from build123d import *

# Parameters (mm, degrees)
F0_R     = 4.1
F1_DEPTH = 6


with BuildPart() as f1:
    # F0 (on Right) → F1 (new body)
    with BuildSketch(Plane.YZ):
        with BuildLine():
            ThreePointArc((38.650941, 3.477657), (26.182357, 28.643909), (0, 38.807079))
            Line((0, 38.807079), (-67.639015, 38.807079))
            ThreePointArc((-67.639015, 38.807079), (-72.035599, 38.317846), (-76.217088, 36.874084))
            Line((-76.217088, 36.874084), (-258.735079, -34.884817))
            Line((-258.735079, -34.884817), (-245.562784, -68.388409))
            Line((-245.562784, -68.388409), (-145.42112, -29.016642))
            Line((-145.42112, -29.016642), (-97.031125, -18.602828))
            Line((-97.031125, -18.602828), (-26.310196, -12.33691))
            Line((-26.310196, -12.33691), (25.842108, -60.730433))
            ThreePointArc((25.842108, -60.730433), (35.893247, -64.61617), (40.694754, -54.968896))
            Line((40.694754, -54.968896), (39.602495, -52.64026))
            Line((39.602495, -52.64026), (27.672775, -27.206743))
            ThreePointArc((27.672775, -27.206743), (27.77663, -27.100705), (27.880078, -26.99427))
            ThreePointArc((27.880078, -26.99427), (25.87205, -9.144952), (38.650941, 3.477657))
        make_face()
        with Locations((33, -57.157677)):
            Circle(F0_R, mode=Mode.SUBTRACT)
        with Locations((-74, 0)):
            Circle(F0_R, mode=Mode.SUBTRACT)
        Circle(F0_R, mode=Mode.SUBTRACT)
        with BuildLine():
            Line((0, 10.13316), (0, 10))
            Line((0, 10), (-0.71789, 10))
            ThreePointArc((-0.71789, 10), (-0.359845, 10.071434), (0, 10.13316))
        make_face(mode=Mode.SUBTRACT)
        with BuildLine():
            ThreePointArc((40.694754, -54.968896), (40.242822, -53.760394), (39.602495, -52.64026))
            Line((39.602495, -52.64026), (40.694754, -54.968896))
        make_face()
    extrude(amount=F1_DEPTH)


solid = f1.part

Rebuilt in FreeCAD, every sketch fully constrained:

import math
import FreeCAD as App
import Part
import Sketcher
Q = App.Units.Quantity

doc = App.newDocument("Part")
body = doc.addObject("PartDesign::Body", "Body")

sketch1 = body.newObject("Sketcher::SketchObject", "Sketch")
sketch1.AttachmentSupport = (doc.getObject("YZ_Plane"), [""])
sketch1.MapMode = "FlatFace"
sketch1.addGeometry([
    Part.ArcOfCircle(Part.Circle(App.Vector(45.267424, -16.000604, 0), App.Vector(0, 0, 1), 20.571351), math.radians(108.76188), math.radians(212.304337)),
    Part.ArcOfCircle(Part.Circle(App.Vector(-0.000001, 0, 0), App.Vector(0, 0, 1), 38.807079), math.radians(5.141401), math.radians(89.999999)),
    Part.LineSegment(App.Vector(0, 38.807079, 0), App.Vector(-67.639015, 38.807079, 0)),
    Part.ArcOfCircle(Part.Circle(App.Vector(-67.63901, 18.807056, 0), App.Vector(0, 0, 1), 20.000023), math.radians(90.000014), math.radians(115.397987)),
    Part.LineSegment(App.Vector(-76.217088, 36.874084, 0), App.Vector(-258.735079, -34.884817, 0)),
    Part.LineSegment(App.Vector(-258.735079, -34.884817, 0), App.Vector(-245.562784, -68.388409, 0)),
    Part.LineSegment(App.Vector(-245.562784, -68.388409, 0), App.Vector(-145.42112, -29.016642, 0)),
    Part.LineSegment(App.Vector(-145.42112, -29.016642, 0), App.Vector(-97.031125, -18.602828, 0)),
    Part.LineSegment(App.Vector(-97.031125, -18.602828, 0), App.Vector(-26.310196, -12.33691, 0)),
    Part.LineSegment(App.Vector(-26.310196, -12.33691, 0), App.Vector(25.842108, -60.730433, 0)),
    Part.ArcOfCircle(Part.Circle(App.Vector(33, -57.157677, 0), App.Vector(0, 0, 1), 8), math.radians(-153.474598), math.radians(15.878456)),
    Part.ArcOfCircle(Part.Circle(App.Vector(33.000015, -57.157671, 0), App.Vector(0, 0, 1), 7.999984), math.radians(15.878447), math.radians(34.379899)),
    Part.LineSegment(App.Vector(39.602495, -52.64026, 0), App.Vector(27.672775, -27.206743, 0)),
    Part.ArcOfCircle(Part.Circle(App.Vector(0.043029, -0.041932, 0), App.Vector(0, 0, 1), 38.746997), math.radians(-44.513854), math.radians(-44.074897)),
    Part.Circle(App.Vector(33, -57.157677, 0), App.Vector(0, 0, 1), 4.1),
    Part.Circle(App.Vector(-74, 0, 0), App.Vector(0, 0, 1), 4.1),
    Part.Circle(App.Vector(0, 0, 0), App.Vector(0, 0, 1), 4.1),
    Part.ArcOfCircle(Part.Circle(App.Vector(2.102376, -3.202853, 0), App.Vector(0, 0, 1), 13.500713), math.radians(98.95875), math.radians(102.057755)),
    Part.LineSegment(App.Vector(0, 10.13316, 0), App.Vector(0, 10, 0)),
    Part.LineSegment(App.Vector(0, 10, 0), App.Vector(-0.71789, 10, 0)),
], False)
sketch1.addConstraint([
    Sketcher.Constraint("Coincident", 0, 1, 1, 1),
    Sketcher.Constraint("Tangent", 1, 2, 2, 1),
    Sketcher.Constraint("Tangent", 2, 2, 3, 1),
    Sketcher.Constraint("Coincident", 3, 2, 4, 1),
    Sketcher.Constraint("Coincident", 4, 2, 5, 1),
    Sketcher.Constraint("Coincident", 5, 2, 6, 1),
    Sketcher.Constraint("Coincident", 6, 2, 7, 1),
    Sketcher.Constraint("Coincident", 7, 2, 8, 1),
    Sketcher.Constraint("Coincident", 8, 2, 9, 1),
    Sketcher.Constraint("Coincident", 9, 2, 10, 1),
    Sketcher.Constraint("Tangent", 10, 2, 11, 1),
    Sketcher.Constraint("Coincident", 11, 2, 12, 1),
    Sketcher.Constraint("Coincident", 12, 2, 13, 1),
    Sketcher.Constraint("Coincident", 13, 2, 0, 2),
    Sketcher.Constraint("Coincident", 17, 1, 18, 1),
    Sketcher.Constraint("Coincident", 18, 2, 19, 1),
    Sketcher.Constraint("Coincident", 19, 2, 17, 2),
    Sketcher.Constraint("Horizontal", 2),
    Sketcher.Constraint("Vertical", 18),
    Sketcher.Constraint("Horizontal", 19),
    Sketcher.Constraint("Coincident", 1, 3, -1, 1),
    Sketcher.Constraint("Coincident", 16, 3, -1, 1),
    Sketcher.Constraint("Coincident", 14, 3, 10, 3),
    Sketcher.Constraint("Equal", 14, 15),
    Sketcher.Constraint("Equal", 15, 16),
    Sketcher.Constraint("PointOnObject", 15, 3, -1),
    Sketcher.Constraint("PointOnObject", 17, 1, -2),
    Sketcher.Constraint("Perpendicular", 4, 5),
    Sketcher.Constraint("Perpendicular", 5, 6),
    Sketcher.Constraint("Radius", 10, Q("8 mm")),
    Sketcher.Constraint("Diameter", 14, Q("8.2 mm")),
    Sketcher.Constraint("Distance", 5, Q("36 mm")),
    Sketcher.Constraint("DistanceX", -1, 1, 10, 3, Q("33 mm")),
    Sketcher.Constraint("DistanceX", 15, 3, -1, 1, Q("74 mm")),
    Sketcher.Constraint("DistanceY", -1, 1, 18, 2, Q("10 mm")),
    Sketcher.Constraint("Radius", 0, Q("20.571351 mm")),
    Sketcher.Constraint("Radius", 1, Q("38.807079 mm")),
    Sketcher.Constraint("Radius", 3, Q("20.000023 mm")),
    Sketcher.Constraint("Radius", 11, Q("7.999984 mm")),
    Sketcher.Constraint("Radius", 13, Q("38.746997 mm")),
    Sketcher.Constraint("Radius", 17, Q("13.500713 mm")),
    Sketcher.Constraint("Distance", 9, Q("71.146299 mm")),
    Sketcher.Constraint("DistanceX", 19, 2, 19, 1, Q("0.71789 mm")),
    Sketcher.Constraint("DistanceY", 18, 2, 18, 1, Q("0.13316 mm")),
    Sketcher.Constraint("DistanceY", 4, 2, 3, 2, Q("71.758901 mm")),
    Sketcher.Constraint("DistanceY", 11, 3, 13, 2, Q("30.163401 mm")),
    Sketcher.Constraint("Distance", 4, Q("196.117712 mm")),
    Sketcher.Constraint("Distance", 7, Q("49.49787 mm")),
    Sketcher.Constraint("Distance", 8, Q("70.997968 mm")),
    Sketcher.Constraint("DistanceX", 2, 2, 2, 1, Q("67.639015 mm")),
    Sketcher.Constraint("DistanceY", 11, 3, -1, 1, Q("57.157671 mm")),
    Sketcher.Constraint("DistanceX", -1, 1, 13, 3, Q("0.043029 mm")),
    Sketcher.Constraint("DistanceX", -1, 1, 0, 1, Q("38.650941 mm")),
    Sketcher.Constraint("DistanceX", 4, 2, -1, 1, Q("258.735079 mm")),
    Sketcher.Constraint("DistanceX", 6, 2, -1, 1, Q("145.42112 mm")),
    Sketcher.Constraint("DistanceY", 8, 2, -1, 1, Q("12.33691 mm")),
    Sketcher.Constraint("DistanceY", 11, 2, -1, 1, Q("52.64026 mm")),
    Sketcher.Constraint("DistanceY", 0, 3, 3, 3, Q("34.80766 mm")),
    Sketcher.Constraint("DistanceY", 7, 2, 3, 2, Q("55.476912 mm")),
    Sketcher.Constraint("DistanceX", 11, 3, 10, 2, Q("7.694739 mm")),
    Sketcher.Constraint("DistanceX", 12, 2, 0, 3, Q("17.594649 mm")),
])
pad1 = body.newObject("PartDesign::Pad", "Pad")
pad1.Profile = sketch1
pad1.Length = 6

doc.recompute()
